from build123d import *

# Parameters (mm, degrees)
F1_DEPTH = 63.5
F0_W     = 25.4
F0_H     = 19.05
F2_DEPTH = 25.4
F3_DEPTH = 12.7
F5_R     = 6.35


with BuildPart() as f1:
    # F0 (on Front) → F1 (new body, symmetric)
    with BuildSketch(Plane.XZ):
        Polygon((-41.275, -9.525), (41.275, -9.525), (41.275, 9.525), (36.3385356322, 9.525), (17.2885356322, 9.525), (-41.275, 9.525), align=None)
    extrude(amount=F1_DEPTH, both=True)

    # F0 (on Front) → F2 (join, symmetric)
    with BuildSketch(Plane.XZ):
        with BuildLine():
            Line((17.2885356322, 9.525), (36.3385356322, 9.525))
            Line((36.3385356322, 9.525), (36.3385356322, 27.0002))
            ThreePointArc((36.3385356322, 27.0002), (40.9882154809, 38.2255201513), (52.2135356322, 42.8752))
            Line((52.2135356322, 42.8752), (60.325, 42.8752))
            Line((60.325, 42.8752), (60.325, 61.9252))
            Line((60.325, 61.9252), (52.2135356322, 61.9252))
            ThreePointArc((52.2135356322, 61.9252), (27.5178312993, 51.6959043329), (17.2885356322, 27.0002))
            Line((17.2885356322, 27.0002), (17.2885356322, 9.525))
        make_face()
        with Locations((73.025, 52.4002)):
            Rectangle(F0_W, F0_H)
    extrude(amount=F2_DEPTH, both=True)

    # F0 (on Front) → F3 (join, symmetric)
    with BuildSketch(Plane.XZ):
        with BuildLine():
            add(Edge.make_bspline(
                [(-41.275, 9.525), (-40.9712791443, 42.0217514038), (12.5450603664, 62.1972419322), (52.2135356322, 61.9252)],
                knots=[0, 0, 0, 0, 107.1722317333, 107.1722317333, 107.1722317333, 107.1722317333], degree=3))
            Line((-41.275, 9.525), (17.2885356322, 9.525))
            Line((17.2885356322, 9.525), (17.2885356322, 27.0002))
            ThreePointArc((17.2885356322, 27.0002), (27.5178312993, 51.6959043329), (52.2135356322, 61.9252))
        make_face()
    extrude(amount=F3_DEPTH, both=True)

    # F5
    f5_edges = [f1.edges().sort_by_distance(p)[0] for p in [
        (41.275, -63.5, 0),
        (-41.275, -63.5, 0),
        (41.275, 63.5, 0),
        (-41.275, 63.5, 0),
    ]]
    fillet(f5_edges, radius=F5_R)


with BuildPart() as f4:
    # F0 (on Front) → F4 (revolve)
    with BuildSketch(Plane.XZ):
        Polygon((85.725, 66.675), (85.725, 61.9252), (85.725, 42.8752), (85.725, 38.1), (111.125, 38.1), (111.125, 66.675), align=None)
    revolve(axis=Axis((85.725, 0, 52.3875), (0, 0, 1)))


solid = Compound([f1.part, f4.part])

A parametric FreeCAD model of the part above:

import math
import FreeCAD as App
import Part
import Sketcher
Q = App.Units.Quantity


def edges_at(feature, points):
    """Names of the edges that pass closest to the given points."""
    edges = feature.Shape.Edges
    near = lambda p: min(range(len(edges)), key=lambda i: edges[i].distToShape(Part.Vertex(*p))[0])
    return sorted({f"Edge{near(p) + 1}" for p in points})

doc = App.newDocument("Part")
params = doc.addObject("Spreadsheet::Sheet", "Params")
for row, (alias, value) in enumerate([
    ("sketch1_width", "3.25 in"),
    ("sketch1_height", "0.75 in"),
    ("pad1_length", "5 in"),
    ("sketch2_radius", "0.625 in"),
    ("sketch2_radius2", "1.375 in"),
    ("sketch2_height", "0.688 in"),
    ("pad2_length", "2 in"),
    ("sketch3_radius", "1.375 in"),
    ("pad3_length", "1 in"),
    ("fillet_radius", "0.25 in"),
    ("sketch4_width", "1 in"),
    ("sketch4_height", "1.125 in"),
    ("revolution_angle", "360 deg"),
], start=1):
    params.set(f"A{row}", alias)
    params.set(f"B{row}", "=" + value)
    params.setAlias(f"B{row}", alias)

body = doc.addObject("PartDesign::Body", "Body")

sketch1 = body.newObject("Sketcher::SketchObject", "Sketch")
sketch1.AttachmentSupport = (doc.getObject("XZ_Plane"), [""])
sketch1.MapMode = "FlatFace"
sketch1.addGeometry([
    Part.LineSegment(App.Vector(-41, -10, 0), App.Vector(41, -10, 0)),
    Part.LineSegment(App.Vector(41, -10, 0), App.Vector(41, 10, 0)),
    Part.LineSegment(App.Vector(41, 10, 0), App.Vector(-41, 10, 0)),
    Part.LineSegment(App.Vector(-41, 10, 0), App.Vector(-41, -10, 0)),
], False)
sketch1.addConstraint([
    Sketcher.Constraint("Coincident", 0, 2, 1, 1),
    Sketcher.Constraint("Coincident", 1, 2, 2, 1),
    Sketcher.Constraint("Coincident", 2, 2, 3, 1),
    Sketcher.Constraint("Coincident", 3, 2, 0, 1),
    Sketcher.Constraint("Horizontal", 0),
    Sketcher.Constraint("Vertical", 1),
    Sketcher.Constraint("Horizontal", 2),
    Sketcher.Constraint("Vertical", 3),
    Sketcher.Constraint("Symmetric", 0, 2, 2, 2, -1, 1),
    Sketcher.Constraint("DistanceX", 0, 1, 0, 2, Q("3.25 in")),
    Sketcher.Constraint("DistanceY", 1, 1, 1, 2, Q("0.75 in")),
])
sketch1.setExpression("Constraints[9]", "Params.sketch1_width")
sketch1.setExpression("Constraints[10]", "Params.sketch1_height")
pad1 = body.newObject("PartDesign::Pad", "Pad")
pad1.Profile = sketch1
pad1.setExpression("Length", "Params.pad1_length")
pad1.Midplane = True

sketch2 = body.newObject("Sketcher::SketchObject", "Sketch001")
sketch2.AttachmentSupport = (doc.getObject("XZ_Plane"), [""])
sketch2.MapMode = "FlatFace"
sketch2.addGeometry([
    Part.LineSegment(App.Vector(17, 10, 0), App.Vector(36, 10, 0)),
    Part.LineSegment(App.Vector(36, 10, 0), App.Vector(36, 27, 0)),
    Part.ArcOfCircle(Part.Circle(App.Vector(52, 27, 0), App.Vector(0, 0, 1), 16), math.radians(90), math.radians(180)),
    Part.LineSegment(App.Vector(52, 43, 0), App.Vector(86, 43, 0)),
    Part.LineSegment(App.Vector(86, 43, 0), App.Vector(86, 62, 0)),
    Part.LineSegment(App.Vector(86, 62, 0), App.Vector(52, 62, 0)),
    Part.ArcOfCircle(Part.Circle(App.Vector(52, 27, 0), App.Vector(0, 0, 1), 35), math.radians(90), math.radians(180)),
    Part.LineSegment(App.Vector(17, 27, 0), App.Vector(17, 10, 0)),
], False)
sketch2.addConstraint([
    Sketcher.Constraint("Coincident", 0, 2, 1, 1),
    Sketcher.Constraint("Tangent", 1, 2, 2, 2),
    Sketcher.Constraint("Tangent", 2, 1, 3, 1),
    Sketcher.Constraint("Coincident", 3, 2, 4, 1),
    Sketcher.Constraint("Coincident", 4, 2, 5, 1),
    Sketcher.Constraint("Tangent", 5, 2, 6, 1),
    Sketcher.Constraint("Tangent", 6, 2, 7, 1),
    Sketcher.Constraint("Coincident", 7, 2, 0, 1),
    Sketcher.Constraint("Horizontal", 0),
    Sketcher.Constraint("Vertical", 1),
    Sketcher.Constraint("Horizontal", 3),
    Sketcher.Constraint("Vertical", 4),
    Sketcher.Constraint("Horizontal", 5),
    Sketcher.Constraint("Vertical", 7),
    Sketcher.Constraint("Coincident", 6, 3, 2, 3),
    Sketcher.Constraint("Radius", 2, Q("0.625 in")),
    Sketcher.Constraint("Radius", 6, Q("1.375 in")),
    Sketcher.Constraint("DistanceY", 1, 1, 1, 2, Q("0.688 in")),
    Sketcher.Constraint("DistanceY", -1, 1, 2, 3, Q("1.063 in")),
    Sketcher.Constraint("DistanceX", -1, 1, 3, 2, Q("3.375 in")),
    Sketcher.Constraint("DistanceX", 3, 1, 3, 2, Q("33.511464 mm")),
])
sketch2.setExpression("Constraints[15]", "Params.sketch2_radius")
sketch2.setExpression("Constraints[16]", "Params.sketch2_radius2")
sketch2.setExpression("Constraints[17]", "Params.sketch2_height")
pad2 = body.newObject("PartDesign::Pad", "Pad001")
pad2.Profile = sketch2
pad2.setExpression("Length", "Params.pad2_length")
pad2.Midplane = True

sketch3 = body.newObject("Sketcher::SketchObject", "Sketch002")
sketch3.AttachmentSupport = (doc.getObject("XZ_Plane"), [""])
sketch3.MapMode = "FlatFace"
sketch3.addGeometry([
    Part.BSplineCurve([App.Vector(-41.275, 9.525, 0), App.Vector(-40.971279, 42.021751, 0), App.Vector(12.54506, 62.197242, 0), App.Vector(52.213536, 61.9252, 0)], [4, 4], [0, 107.172231733], False, 3, [1, 1, 1, 1], False),
    Part.LineSegment(App.Vector(-41.275, 9.525, 0), App.Vector(17.288536, 9.525, 0)),
    Part.LineSegment(App.Vector(17.288536, 9.525, 0), App.Vector(17.288536, 27.0002, 0)),
    Part.ArcOfCircle(Part.Circle(App.Vector(52.213536, 27.0002, 0), App.Vector(0, 0, 1), 34.925), math.radians(90), math.radians(180)),
], False)
sketch3.addConstraint([
    Sketcher.Constraint("Block", 0),
    Sketcher.Constraint("Coincident", 0, 1, 1, 1),
    Sketcher.Constraint("Coincident", 1, 2, 2, 1),
    Sketcher.Constraint("Tangent", 2, 2, 3, 2),
    Sketcher.Constraint("Coincident", 3, 1, 0, 2),
    Sketcher.Constraint("Horizontal", 1),
    Sketcher.Constraint("Vertical", 2),
    Sketcher.Constraint("Radius", 3, Q("1.375 in")),
    Sketcher.Constraint("DistanceX", 2, 2, 3, 1, Q("1.375 in")),
])
sketch3.setExpression("Constraints[7]", "Params.sketch3_radius")
pad3 = body.newObject("PartDesign::Pad", "Pad002")
pad3.Profile = sketch3
pad3.setExpression("Length", "Params.pad3_length")
pad3.Midplane = True
doc.recompute()

fillet = body.newObject("PartDesign::Fillet", "Fillet")
fillet.Base = (pad3, edges_at(pad3, [
    (41.275, -63.5, 0),
    (-41.275, -63.5, 0),
    (41.275, 63.5, 0),
    (-41.275, 63.5, 0),
]))
fillet.setExpression("Radius", "Params.fillet_radius")
body2 = doc.addObject("PartDesign::Body", "Body001")

sketch4 = body2.newObject("Sketcher::SketchObject", "Sketch003")
sketch4.AttachmentSupport = (doc.getObject("XZ_Plane001"), [""])
sketch4.MapMode = "FlatFace"
sketch4.addGeometry([
    Part.LineSegment(App.Vector(86, 67, 0), App.Vector(86, 38, 0)),
    Part.LineSegment(App.Vector(86, 38, 0), App.Vector(111, 38, 0)),
    Part.LineSegment(App.Vector(111, 38, 0), App.Vector(111, 67, 0)),
    Part.LineSegment(App.Vector(111, 67, 0), App.Vector(86, 67, 0)),
], False)
sketch4.addGeometry(Part.LineSegment(App.Vector(86, 38, 0), App.Vector(86, 67, 0)), True)
sketch4.addConstraint([
    Sketcher.Constraint("Coincident", 0, 2, 1, 1),
    Sketcher.Constraint("Coincident", 1, 2, 2, 1),
    Sketcher.Constraint("Coincident", 2, 2, 3, 1),
    Sketcher.Constraint("Coincident", 3, 2, 0, 1),
    Sketcher.Constraint("Vertical", 0),
    Sketcher.Constraint("Horizontal", 1),
    Sketcher.Constraint("Vertical", 2),
    Sketcher.Constraint("Horizontal", 3),
    Sketcher.Constraint("Vertical", 4),
    Sketcher.Constraint("Coincident", 4, 1, 0, 2),
    Sketcher.Constraint("Horizontal", 2, 2, 4, 2),
    Sketcher.Constraint("DistanceX", 1, 1, 1, 2, Q("1 in")),
    Sketcher.Constraint("DistanceY", -1, 1, 0, 2, Q("1.5 in")),
    Sketcher.Constraint("DistanceY", 0, 2, 0, 1, Q("1.125 in")),
    Sketcher.Constraint("DistanceX", -1, 1, 0, 2, Q("3.375 in")),
])
sketch4.setExpression("Constraints[11]", "Params.sketch4_width")
sketch4.setExpression("Constraints[13]", "Params.sketch4_height")
revolution = body2.newObject("PartDesign::Revolution", "Revolution")
revolution.Profile = sketch4
revolution.ReferenceAxis = (sketch4, ["Axis0"])
revolution.setExpression("Angle", "Params.revolution_angle")

doc.recompute()
